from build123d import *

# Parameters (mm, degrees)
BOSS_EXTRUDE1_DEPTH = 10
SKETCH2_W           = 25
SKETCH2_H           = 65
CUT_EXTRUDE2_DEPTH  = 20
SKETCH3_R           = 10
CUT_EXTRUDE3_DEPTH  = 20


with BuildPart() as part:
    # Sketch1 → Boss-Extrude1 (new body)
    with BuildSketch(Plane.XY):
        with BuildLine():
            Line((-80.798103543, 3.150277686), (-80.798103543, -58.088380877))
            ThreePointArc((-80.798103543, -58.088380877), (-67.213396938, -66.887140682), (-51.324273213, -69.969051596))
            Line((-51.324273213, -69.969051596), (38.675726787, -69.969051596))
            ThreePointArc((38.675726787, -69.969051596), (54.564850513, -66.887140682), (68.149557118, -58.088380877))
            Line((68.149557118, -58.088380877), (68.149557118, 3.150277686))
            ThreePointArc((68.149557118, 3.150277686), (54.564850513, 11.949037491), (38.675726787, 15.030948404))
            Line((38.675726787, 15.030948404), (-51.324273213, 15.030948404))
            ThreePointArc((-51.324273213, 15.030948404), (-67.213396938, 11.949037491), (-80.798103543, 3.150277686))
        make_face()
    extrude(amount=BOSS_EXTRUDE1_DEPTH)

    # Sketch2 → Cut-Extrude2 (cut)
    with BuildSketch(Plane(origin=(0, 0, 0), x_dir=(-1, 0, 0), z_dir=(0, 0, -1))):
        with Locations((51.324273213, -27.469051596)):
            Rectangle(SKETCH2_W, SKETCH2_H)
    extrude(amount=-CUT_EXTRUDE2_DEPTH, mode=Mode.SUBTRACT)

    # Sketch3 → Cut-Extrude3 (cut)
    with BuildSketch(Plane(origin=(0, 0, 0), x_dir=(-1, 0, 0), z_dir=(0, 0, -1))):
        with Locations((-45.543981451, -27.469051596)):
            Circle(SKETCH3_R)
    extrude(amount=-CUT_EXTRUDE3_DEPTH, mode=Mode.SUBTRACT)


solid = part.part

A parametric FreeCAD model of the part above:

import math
import FreeCAD as App
import Part
import Sketcher

doc = App.newDocument("Part")
body = doc.addObject("PartDesign::Body", "Body")

# Sketch on XY plane
sketch1 = doc.addObject("Sketcher::SketchObject", "Sketch")
body.addObject(sketch1)
sketch1.AttachmentSupport = (doc.XY_Plane, [""])
sketch1.MapMode = "FlatFace"
sketch1.addGeometry([
    Part.LineSegment(App.Vector(-81, 3, 0), App.Vector(-81, -58, 0)),  # 0
    Part.ArcOfCircle(Part.Circle(App.Vector(-51, -27, 0), App.Vector(0, 0, 1), 43), math.radians(-134), math.radians(-90)),  # 1
    Part.LineSegment(App.Vector(-51, -70, 0), App.Vector(39, -70, 0)),  # 2
    Part.ArcOfCircle(Part.Circle(App.Vector(39, -27, 0), App.Vector(0, 0, 1), 43), math.radians(-90), math.radians(-46)),  # 3
    Part.LineSegment(App.Vector(68, -58, 0), App.Vector(68, 3, 0)),  # 4
    Part.ArcOfCircle(Part.Circle(App.Vector(39, -27, 0), App.Vector(0, 0, 1), 42), math.radians(46), math.radians(90)),  # 5
    Part.LineSegment(App.Vector(39, 15, 0), App.Vector(-51, 15, 0)),  # 6
    Part.ArcOfCircle(Part.Circle(App.Vector(-51, -27, 0), App.Vector(0, 0, 1), 42), math.radians(90), math.radians(134)),  # 7
], False)
sketch1.addConstraint([
    Sketcher.Constraint("Coincident", 0, 2, 1, 1),
    Sketcher.Constraint("Tangent", 1, 2, 2, 1),
    Sketcher.Constraint("Tangent", 2, 2, 3, 1),
    Sketcher.Constraint("Coincident", 3, 2, 4, 1),
    Sketcher.Constraint("Coincident", 4, 2, 5, 1),
    Sketcher.Constraint("Tangent", 5, 2, 6, 1),
    Sketcher.Constraint("Tangent", 6, 2, 7, 1),
    Sketcher.Constraint("Coincident", 7, 2, 0, 1),
    Sketcher.Constraint("Vertical", 0),
    Sketcher.Constraint("Horizontal", 2),
    Sketcher.Constraint("Vertical", 4),
    Sketcher.Constraint("Horizontal", 6),
    Sketcher.Constraint("Coincident", 5, 3, 3, 3),
    Sketcher.Constraint("Coincident", 7, 3, 1, 3),
    Sketcher.Constraint("Equal", 1, 3),
    Sketcher.Constraint("Equal", 3, 5),
    Sketcher.Constraint("Horizontal", 0, 2, 3, 2),
    Sketcher.Constraint("Radius", 1, 42.5),
    Sketcher.Constraint("DistanceX", 2, 1, 2, 2, 90.0),
    Sketcher.Constraint("DistanceY", 0, 2, 0, 1, 61.238659),
    Sketcher.Constraint("DistanceY", 1, 3, -1, 1, 27.469052),
    Sketcher.Constraint("DistanceX", 1, 3, -1, 1, 51.324273),
])
pad1 = doc.addObject("PartDesign::Pad", "Pad")
body.addObject(pad1)
pad1.Profile = sketch1
pad1.Length = 10

# Sketch on XY plane
sketch2 = doc.addObject("Sketcher::SketchObject", "Sketch001")
body.addObject(sketch2)
sketch2.AttachmentSupport = (doc.XY_Plane, [""])
sketch2.MapMode = "FlatFace"
sketch2.addGeometry([
    Part.LineSegment(App.Vector(-39, 5, 0), App.Vector(-39, -60, 0)),
    Part.LineSegment(App.Vector(-39, -60, 0), App.Vector(-64, -60, 0)),
    Part.LineSegment(App.Vector(-64, -60, 0), App.Vector(-64, 5, 0)),
    Part.LineSegment(App.Vector(-64, 5, 0), App.Vector(-39, 5, 0)),
], False)
sketch2.addConstraint([
    Sketcher.Constraint("Coincident", 0, 2, 1, 1),
    Sketcher.Constraint("Coincident", 1, 2, 2, 1),
    Sketcher.Constraint("Coincident", 2, 2, 3, 1),
    Sketcher.Constraint("Coincident", 3, 2, 0, 1),
    Sketcher.Constraint("Vertical", 0),
    Sketcher.Constraint("Horizontal", 1),
    Sketcher.Constraint("Vertical", 2),
    Sketcher.Constraint("Horizontal", 3),
    Sketcher.Constraint("DistanceX", 1, 2, 1, 1, 25.0),
    Sketcher.Constraint("DistanceY", 0, 2, 0, 1, 65.0),
    Sketcher.Constraint("DistanceY", 0, 2, -1, 1, 59.969052),
    Sketcher.Constraint("DistanceX", 0, 2, -1, 1, 38.824273),
])
pocket1 = doc.addObject("PartDesign::Pocket", "Pocket")
body.addObject(pocket1)
pocket1.Profile = sketch2
pocket1.Length = 20
pocket1.Reversed = True

# Sketch on XY plane
sketch3 = doc.addObject("Sketcher::SketchObject", "Sketch002")
body.addObject(sketch3)
sketch3.AttachmentSupport = (doc.XY_Plane, [""])
sketch3.MapMode = "FlatFace"
sketch3.addGeometry(Part.Circle(App.Vector(46, -27, 0), App.Vector(0, 0, 1), 10), False)
sketch3.addConstraint([
    Sketcher.Constraint("Diameter", 0, 20.0),
    Sketcher.Constraint("DistanceX", -1, 1, 0, 3, 45.543981),
    Sketcher.Constraint("DistanceY", 0, 3, -1, 1, 27.469052),
])
pocket2 = doc.addObject("PartDesign::Pocket", "Pocket001")
body.addObject(pocket2)
pocket2.Profile = sketch3
pocket2.Length = 20
pocket2.Reversed = True

doc.recompute()
